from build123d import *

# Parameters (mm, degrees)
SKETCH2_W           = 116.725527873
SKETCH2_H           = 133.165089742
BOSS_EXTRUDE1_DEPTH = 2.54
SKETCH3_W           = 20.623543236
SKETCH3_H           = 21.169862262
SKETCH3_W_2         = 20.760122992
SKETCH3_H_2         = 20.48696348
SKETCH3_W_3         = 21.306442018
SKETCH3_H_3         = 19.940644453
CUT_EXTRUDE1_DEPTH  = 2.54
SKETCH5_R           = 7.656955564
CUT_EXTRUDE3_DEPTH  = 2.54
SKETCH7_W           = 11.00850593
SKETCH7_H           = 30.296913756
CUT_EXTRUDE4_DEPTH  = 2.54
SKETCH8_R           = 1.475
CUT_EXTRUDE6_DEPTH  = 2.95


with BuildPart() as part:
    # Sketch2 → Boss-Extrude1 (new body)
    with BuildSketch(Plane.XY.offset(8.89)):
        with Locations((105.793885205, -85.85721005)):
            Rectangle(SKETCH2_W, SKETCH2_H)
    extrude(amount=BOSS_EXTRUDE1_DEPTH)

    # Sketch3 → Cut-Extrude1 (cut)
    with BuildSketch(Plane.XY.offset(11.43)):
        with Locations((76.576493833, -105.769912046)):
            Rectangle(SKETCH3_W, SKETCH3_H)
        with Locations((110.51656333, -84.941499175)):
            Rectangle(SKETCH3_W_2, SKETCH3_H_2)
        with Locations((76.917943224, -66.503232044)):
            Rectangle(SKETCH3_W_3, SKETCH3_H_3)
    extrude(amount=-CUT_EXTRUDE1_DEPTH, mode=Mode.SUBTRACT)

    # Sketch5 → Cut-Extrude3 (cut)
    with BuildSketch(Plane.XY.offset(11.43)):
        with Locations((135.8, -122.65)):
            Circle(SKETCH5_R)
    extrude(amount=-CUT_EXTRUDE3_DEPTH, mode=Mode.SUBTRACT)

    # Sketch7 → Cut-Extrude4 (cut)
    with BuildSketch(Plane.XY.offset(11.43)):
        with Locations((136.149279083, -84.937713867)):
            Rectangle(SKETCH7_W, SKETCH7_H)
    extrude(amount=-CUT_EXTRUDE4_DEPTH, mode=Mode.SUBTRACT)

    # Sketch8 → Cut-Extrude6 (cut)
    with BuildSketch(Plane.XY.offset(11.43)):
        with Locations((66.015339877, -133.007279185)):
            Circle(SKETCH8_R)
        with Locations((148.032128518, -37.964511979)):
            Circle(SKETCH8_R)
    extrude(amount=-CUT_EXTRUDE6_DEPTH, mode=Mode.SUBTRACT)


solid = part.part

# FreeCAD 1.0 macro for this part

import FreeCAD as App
import Part
import Sketcher

V = App.Vector
Q = App.Units.Quantity


def add_polygon(sketch, points):
    """Adds a closed chain of lines whose ends are joined by coincident constraints."""
    first, n = sketch.GeometryCount, len(points)
    for a, b in zip(points, points[1:] + points[:1]):
        sketch.addGeometry(Part.LineSegment(App.Vector(*a, 0), App.Vector(*b, 0)), False)
    for i in range(n):
        sketch.addConstraint(Sketcher.Constraint("Coincident", first + i, 2, first + (i + 1) % n, 1))

doc = App.newDocument("Part")
body = doc.addObject("PartDesign::Body", "Body")

sketch1 = doc.addObject("Sketcher::SketchObject", "Sketch")
body.addObject(sketch1)
sketch1.AttachmentSupport = (doc.XY_Plane, [""])
sketch1.MapMode = "FlatFace"
sketch1.AttachmentOffset = App.Placement(V(0, 0, 0.35 * 25.4), App.Rotation())
add_polygon(sketch1, [(47.431121, -19.274665), (47.431121, -152.439755), (164.156649, -152.439755), (164.156649, -19.274665)])
sketch1.addConstraint(Sketcher.Constraint("Vertical", 0))
sketch1.addConstraint(Sketcher.Constraint("Horizontal", 1))
sketch1.addConstraint(Sketcher.Constraint("Vertical", 2))
sketch1.addConstraint(Sketcher.Constraint("Horizontal", 3))
sketch1.addConstraint(Sketcher.Constraint("DistanceY", 0, 2, 0, 1, 133.16509))
sketch1.addConstraint(Sketcher.Constraint("DistanceX", 1, 1, 1, 2, 116.725528))
sketch1.addConstraint(Sketcher.Constraint("DistanceX", -1, 1, 0, 2, 47.431121))
sketch1.addConstraint(Sketcher.Constraint("DistanceY", 0, 2, -1, 1, 152.439755))
pad1 = doc.addObject("PartDesign::Pad", "Pad")
body.addObject(pad1)
pad1.Profile = sketch1
pad1.Length = Q("0.1 in")

sketch2 = doc.addObject("Sketcher::SketchObject", "Sketch001")
body.addObject(sketch2)
sketch2.AttachmentSupport = (doc.XY_Plane, [""])
sketch2.MapMode = "FlatFace"
sketch2.AttachmentOffset = App.Placement(V(0, 0, 0.45 * 25.4), App.Rotation())
add_polygon(sketch2, [(66.264722, -95.184981), (66.264722, -116.354843), (86.888265, -116.354843), (86.888265, -95.184981)])
add_polygon(sketch2, [(100.136502, -74.698017), (100.136502, -95.184981), (120.896625, -95.184981), (120.896625, -74.698017)])
add_polygon(sketch2, [(66.264722, -56.53291), (66.264722, -76.473554), (87.571164, -76.473554), (87.571164, -56.53291)])
sketch2.addConstraint(Sketcher.Constraint("Vertical", 0))
sketch2.addConstraint(Sketcher.Constraint("Horizontal", 1))
sketch2.addConstraint(Sketcher.Constraint("Vertical", 2))
sketch2.addConstraint(Sketcher.Constraint("Horizontal", 3))
sketch2.addConstraint(Sketcher.Constraint("Vertical", 4))
sketch2.addConstraint(Sketcher.Constraint("Horizontal", 5))
sketch2.addConstraint(Sketcher.Constraint("Vertical", 6))
sketch2.addConstraint(Sketcher.Constraint("Horizontal", 7))
sketch2.addConstraint(Sketcher.Constraint("Vertical", 8))
sketch2.addConstraint(Sketcher.Constraint("Horizontal", 9))
sketch2.addConstraint(Sketcher.Constraint("Vertical", 10))
sketch2.addConstraint(Sketcher.Constraint("Horizontal", 11))
sketch2.addConstraint(Sketcher.Constraint("Horizontal", 3, 2, 4, 2))
sketch2.addConstraint(Sketcher.Constraint("Vertical", 3, 2, 8, 2))
sketch2.addConstraint(Sketcher.Constraint("DistanceX", -1, 1, 4, 2, 100.136502))
sketch2.addConstraint(Sketcher.Constraint("DistanceX", 2, 2, 9, 2, 0.682899))
sketch2.addConstraint(Sketcher.Constraint("DistanceX", 1, 1, 1, 2, 20.623543))
sketch2.addConstraint(Sketcher.Constraint("DistanceX", 5, 1, 5, 2, 20.760123))
sketch2.addConstraint(Sketcher.Constraint("DistanceY", 0, 2, 0, 1, 21.169862))
sketch2.addConstraint(Sketcher.Constraint("DistanceY", 4, 2, 4, 1, 20.486963))
sketch2.addConstraint(Sketcher.Constraint("DistanceY", 8, 2, 8, 1, 19.940644))
sketch2.addConstraint(Sketcher.Constraint("DistanceY", 2, 2, -1, 1, 95.184981))
sketch2.addConstraint(Sketcher.Constraint("DistanceY", 10, 2, -1, 1, 56.53291))
sketch2.addConstraint(Sketcher.Constraint("DistanceX", 3, 2, 4, 2, 33.87178))
pocket1 = doc.addObject("PartDesign::Pocket", "Pocket")
body.addObject(pocket1)
pocket1.Profile = sketch2
pocket1.Length = Q("0.1 in")

sketch3 = doc.addObject("Sketcher::SketchObject", "Sketch002")
body.addObject(sketch3)
sketch3.AttachmentSupport = (doc.XY_Plane, [""])
sketch3.MapMode = "FlatFace"
sketch3.AttachmentOffset = App.Placement(V(0, 0, 0.45 * 25.4), App.Rotation())
sketch3.addGeometry(Part.Circle(V(135.8, -122.65, 0), V(0, 0, 1), 7.656956), False)
sketch3.addConstraint(Sketcher.Constraint("Diameter", 0, 15.313911))
sketch3.addConstraint(Sketcher.Constraint("DistanceX", -1, 1, 0, 3, 135.8))
sketch3.addConstraint(Sketcher.Constraint("DistanceY", 0, 3, -1, 1, 122.65))
pocket2 = doc.addObject("PartDesign::Pocket", "Pocket001")
body.addObject(pocket2)
pocket2.Profile = sketch3
pocket2.Length = Q("0.1 in")

sketch4 = doc.addObject("Sketcher::SketchObject", "Sketch003")
body.addObject(sketch4)
sketch4.AttachmentSupport = (doc.XY_Plane, [""])
sketch4.MapMode = "FlatFace"
sketch4.AttachmentOffset = App.Placement(V(0, 0, 0.45 * 25.4), App.Rotation())
add_polygon(sketch4, [(130.645026, -69.789257), (130.645026, -100.086171), (141.653532, -100.086171), (141.653532, -69.789257)])
sketch4.addConstraint(Sketcher.Constraint("Vertical", 0))
sketch4.addConstraint(Sketcher.Constraint("Horizontal", 1))
sketch4.addConstraint(Sketcher.Constraint("Vertical", 2))
sketch4.addConstraint(Sketcher.Constraint("Horizontal", 3))
sketch4.addConstraint(Sketcher.Constraint("DistanceX", 1, 1, 1, 2, 11.008506))
sketch4.addConstraint(Sketcher.Constraint("DistanceY", 0, 2, 0, 1, 30.296914))
sketch4.addConstraint(Sketcher.Constraint("DistanceY", 0, 2, -1, 1, 100.086171))
sketch4.addConstraint(Sketcher.Constraint("DistanceX", -1, 1, 0, 2, 130.645026))
pocket3 = doc.addObject("PartDesign::Pocket", "Pocket002")
body.addObject(pocket3)
pocket3.Profile = sketch4
pocket3.Length = Q("0.1 in")

sketch5 = doc.addObject("Sketcher::SketchObject", "Sketch004")
body.addObject(sketch5)
sketch5.AttachmentSupport = (doc.XY_Plane, [""])
sketch5.MapMode = "FlatFace"
sketch5.AttachmentOffset = App.Placement(V(0, 0, 0.45 * 25.4), App.Rotation())
sketch5.addGeometry(Part.Circle(V(66.01534, -133.007279, 0), V(0, 0, 1), 1.475), False)
sketch5.addGeometry(Part.Circle(V(148.032129, -37.964512, 0), V(0, 0, 1), 1.475), False)
sketch5.addConstraint(Sketcher.Constraint("Equal", 0, 1))
sketch5.addConstraint(Sketcher.Constraint("Diameter", 0, 2.95))
sketch5.addConstraint(Sketcher.Constraint("DistanceX", -1, 1, 0, 3, 66.01534))
sketch5.addConstraint(Sketcher.Constraint("DistanceY", 0, 3, -1, 1, 133.007279))
sketch5.addConstraint(Sketcher.Constraint("DistanceX", -1, 1, 1, 3, 148.032129))
sketch5.addConstraint(Sketcher.Constraint("DistanceY", 1, 3, -1, 1, 37.964512))
pocket4 = doc.addObject("PartDesign::Pocket", "Pocket003")
body.addObject(pocket4)
pocket4.Profile = sketch5
pocket4.Length = 2.95

doc.recompute()
